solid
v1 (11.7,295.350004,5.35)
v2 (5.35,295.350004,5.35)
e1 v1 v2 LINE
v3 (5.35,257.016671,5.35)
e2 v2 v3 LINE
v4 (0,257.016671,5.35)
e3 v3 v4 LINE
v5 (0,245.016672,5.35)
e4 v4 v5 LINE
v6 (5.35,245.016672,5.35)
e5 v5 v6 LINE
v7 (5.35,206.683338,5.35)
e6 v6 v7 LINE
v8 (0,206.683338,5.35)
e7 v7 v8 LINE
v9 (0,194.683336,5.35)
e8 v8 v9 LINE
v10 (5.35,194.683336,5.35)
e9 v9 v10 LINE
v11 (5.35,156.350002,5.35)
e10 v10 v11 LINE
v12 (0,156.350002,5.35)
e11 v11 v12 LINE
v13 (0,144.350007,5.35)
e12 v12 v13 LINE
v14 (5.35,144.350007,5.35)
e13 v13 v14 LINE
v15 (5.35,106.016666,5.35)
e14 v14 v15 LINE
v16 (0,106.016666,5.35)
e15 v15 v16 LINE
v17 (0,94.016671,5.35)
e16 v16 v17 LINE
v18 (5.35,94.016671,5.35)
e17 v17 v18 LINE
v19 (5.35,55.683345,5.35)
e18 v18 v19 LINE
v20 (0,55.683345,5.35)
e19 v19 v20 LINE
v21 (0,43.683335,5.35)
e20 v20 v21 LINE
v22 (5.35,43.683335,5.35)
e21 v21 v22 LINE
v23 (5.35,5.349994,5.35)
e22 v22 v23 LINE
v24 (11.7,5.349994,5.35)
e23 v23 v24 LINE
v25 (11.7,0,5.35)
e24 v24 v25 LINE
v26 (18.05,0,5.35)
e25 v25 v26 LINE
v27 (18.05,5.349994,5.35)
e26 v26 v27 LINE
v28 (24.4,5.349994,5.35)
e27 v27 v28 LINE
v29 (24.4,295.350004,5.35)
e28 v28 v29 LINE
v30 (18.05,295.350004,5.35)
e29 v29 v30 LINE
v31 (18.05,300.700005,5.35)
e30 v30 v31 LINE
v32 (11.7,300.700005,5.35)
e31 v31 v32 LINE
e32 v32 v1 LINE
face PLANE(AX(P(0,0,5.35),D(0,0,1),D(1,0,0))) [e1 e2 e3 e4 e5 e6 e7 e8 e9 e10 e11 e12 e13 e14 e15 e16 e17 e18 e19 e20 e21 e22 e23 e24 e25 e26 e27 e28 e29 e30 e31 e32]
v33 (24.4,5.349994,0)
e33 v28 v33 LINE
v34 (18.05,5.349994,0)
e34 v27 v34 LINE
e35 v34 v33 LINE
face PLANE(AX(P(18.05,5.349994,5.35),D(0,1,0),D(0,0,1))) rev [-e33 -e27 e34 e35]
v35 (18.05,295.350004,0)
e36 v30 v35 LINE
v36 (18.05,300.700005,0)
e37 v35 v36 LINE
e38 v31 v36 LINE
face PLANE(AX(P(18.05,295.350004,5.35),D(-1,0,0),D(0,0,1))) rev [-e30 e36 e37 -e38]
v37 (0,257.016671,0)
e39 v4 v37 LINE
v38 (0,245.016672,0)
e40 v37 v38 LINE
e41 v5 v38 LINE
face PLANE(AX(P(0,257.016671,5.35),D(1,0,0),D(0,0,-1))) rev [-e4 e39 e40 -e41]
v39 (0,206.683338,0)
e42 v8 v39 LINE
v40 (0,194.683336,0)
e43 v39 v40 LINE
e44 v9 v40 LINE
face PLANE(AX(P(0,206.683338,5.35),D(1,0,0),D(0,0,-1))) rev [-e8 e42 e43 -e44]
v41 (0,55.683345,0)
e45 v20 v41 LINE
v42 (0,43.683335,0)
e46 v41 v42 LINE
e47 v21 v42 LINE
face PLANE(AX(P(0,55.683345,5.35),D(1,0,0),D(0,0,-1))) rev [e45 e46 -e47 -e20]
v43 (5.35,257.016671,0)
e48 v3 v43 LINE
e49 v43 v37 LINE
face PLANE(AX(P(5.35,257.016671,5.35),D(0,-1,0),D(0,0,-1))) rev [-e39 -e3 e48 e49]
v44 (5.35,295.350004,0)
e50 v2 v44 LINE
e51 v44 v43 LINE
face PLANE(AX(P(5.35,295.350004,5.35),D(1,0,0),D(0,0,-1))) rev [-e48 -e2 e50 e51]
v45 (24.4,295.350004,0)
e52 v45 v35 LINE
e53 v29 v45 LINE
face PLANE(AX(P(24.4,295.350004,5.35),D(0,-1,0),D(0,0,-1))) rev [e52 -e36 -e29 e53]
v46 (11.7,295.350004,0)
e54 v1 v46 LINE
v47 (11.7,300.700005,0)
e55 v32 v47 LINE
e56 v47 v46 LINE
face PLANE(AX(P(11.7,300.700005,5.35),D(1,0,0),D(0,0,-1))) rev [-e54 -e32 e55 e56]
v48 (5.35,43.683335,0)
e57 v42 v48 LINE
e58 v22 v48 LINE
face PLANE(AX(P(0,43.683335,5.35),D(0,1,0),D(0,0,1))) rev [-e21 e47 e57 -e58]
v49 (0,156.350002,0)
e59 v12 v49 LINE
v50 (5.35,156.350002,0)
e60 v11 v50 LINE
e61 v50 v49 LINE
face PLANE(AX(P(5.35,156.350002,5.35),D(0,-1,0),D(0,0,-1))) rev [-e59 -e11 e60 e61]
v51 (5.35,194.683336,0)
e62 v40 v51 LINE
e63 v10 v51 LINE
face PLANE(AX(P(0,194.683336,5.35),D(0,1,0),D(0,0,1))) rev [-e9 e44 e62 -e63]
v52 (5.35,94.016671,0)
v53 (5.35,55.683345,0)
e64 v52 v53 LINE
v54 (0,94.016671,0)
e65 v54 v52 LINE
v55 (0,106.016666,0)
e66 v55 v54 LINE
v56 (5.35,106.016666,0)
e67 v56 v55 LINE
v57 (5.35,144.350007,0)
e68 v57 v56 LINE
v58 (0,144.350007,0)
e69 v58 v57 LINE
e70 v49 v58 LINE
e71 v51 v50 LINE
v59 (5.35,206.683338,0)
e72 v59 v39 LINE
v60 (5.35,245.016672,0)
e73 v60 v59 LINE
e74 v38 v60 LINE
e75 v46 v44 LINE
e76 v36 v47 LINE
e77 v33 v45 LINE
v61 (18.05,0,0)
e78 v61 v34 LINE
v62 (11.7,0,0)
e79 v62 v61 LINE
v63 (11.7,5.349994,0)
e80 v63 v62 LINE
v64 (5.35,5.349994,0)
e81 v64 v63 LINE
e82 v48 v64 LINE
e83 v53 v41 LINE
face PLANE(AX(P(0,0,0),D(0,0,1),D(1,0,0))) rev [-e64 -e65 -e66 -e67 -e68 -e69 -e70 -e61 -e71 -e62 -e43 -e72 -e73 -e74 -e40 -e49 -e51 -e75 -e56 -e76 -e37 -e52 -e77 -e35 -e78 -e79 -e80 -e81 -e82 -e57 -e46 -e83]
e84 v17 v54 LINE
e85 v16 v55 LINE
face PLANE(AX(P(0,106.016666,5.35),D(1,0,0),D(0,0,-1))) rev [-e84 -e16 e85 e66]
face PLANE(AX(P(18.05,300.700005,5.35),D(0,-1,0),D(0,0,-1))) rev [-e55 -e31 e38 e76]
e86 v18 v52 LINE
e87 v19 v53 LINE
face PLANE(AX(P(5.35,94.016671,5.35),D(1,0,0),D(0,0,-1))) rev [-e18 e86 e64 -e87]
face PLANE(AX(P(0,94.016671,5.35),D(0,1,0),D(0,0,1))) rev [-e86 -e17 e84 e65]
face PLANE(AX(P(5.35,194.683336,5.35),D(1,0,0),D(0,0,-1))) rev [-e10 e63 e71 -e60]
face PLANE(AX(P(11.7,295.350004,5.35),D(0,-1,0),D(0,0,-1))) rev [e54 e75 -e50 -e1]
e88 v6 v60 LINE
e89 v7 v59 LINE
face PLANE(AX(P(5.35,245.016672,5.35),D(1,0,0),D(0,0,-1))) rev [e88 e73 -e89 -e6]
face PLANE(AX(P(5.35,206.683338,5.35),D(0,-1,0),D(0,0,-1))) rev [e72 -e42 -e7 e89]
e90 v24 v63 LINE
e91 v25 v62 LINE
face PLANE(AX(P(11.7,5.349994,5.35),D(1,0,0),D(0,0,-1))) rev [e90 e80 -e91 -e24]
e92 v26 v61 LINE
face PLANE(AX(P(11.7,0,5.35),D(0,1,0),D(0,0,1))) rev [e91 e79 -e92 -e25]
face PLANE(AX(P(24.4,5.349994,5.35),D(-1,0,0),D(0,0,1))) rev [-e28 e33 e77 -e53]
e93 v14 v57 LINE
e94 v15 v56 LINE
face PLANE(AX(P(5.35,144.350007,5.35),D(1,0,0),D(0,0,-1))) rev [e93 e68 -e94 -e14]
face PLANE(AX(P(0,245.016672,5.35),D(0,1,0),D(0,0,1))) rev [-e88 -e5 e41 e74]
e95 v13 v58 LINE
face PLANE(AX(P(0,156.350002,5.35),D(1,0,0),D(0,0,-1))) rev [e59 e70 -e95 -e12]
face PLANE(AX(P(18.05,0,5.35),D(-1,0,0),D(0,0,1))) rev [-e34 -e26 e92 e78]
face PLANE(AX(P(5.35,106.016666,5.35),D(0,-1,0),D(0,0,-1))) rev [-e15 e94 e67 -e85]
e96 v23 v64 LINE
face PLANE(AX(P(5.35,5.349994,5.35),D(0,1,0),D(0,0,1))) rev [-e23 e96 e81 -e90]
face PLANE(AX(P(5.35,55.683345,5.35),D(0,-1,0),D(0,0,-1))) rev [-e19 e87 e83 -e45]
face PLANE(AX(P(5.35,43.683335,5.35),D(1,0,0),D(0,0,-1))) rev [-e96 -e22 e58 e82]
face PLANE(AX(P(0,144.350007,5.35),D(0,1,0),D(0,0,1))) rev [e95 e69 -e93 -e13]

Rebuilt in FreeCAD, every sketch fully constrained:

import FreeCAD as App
import Part
import Sketcher
from FreeCAD import Vector


def add_polygon(sketch, points):
    """Adds a closed chain of lines whose ends are joined by coincident constraints."""
    first, n = sketch.GeometryCount, len(points)
    for a, b in zip(points, points[1:] + points[:1]):
        sketch.addGeometry(Part.LineSegment(App.Vector(*a, 0), App.Vector(*b, 0)), False)
    for i in range(n):
        sketch.addConstraint(Sketcher.Constraint("Coincident", first + i, 2, first + (i + 1) % n, 1))

doc = App.newDocument("Part")
body = doc.addObject("PartDesign::Body", "Body")

# Sketch on XY plane
sketch1 = body.newObject("Sketcher::SketchObject", "Sketch")
sketch1.AttachmentSupport = (doc.getObject("XY_Plane"), [""])
sketch1.MapMode = "FlatFace"
add_polygon(sketch1, [(24.4, 295.350004), (18.05, 295.350004), (18.05, 300.700005), (11.7, 300.700005), (11.7, 295.350004), (5.35, 295.350004), (5.35, 257.016671), (0, 257.016671), (0, 245.016672), (5.35, 245.016672), (5.35, 206.683338), (0, 206.683338), (0, 194.683336), (5.35, 194.683336), (5.35, 156.350002), (0, 156.350002), (0, 144.350007), (5.35, 144.350007), (5.35, 106.016666), (0, 106.016666), (0, 94.016671), (5.35, 94.016671), (5.35, 55.683345), (0, 55.683345), (0, 43.683335), (5.35, 43.683335), (5.35, 5.349994), (11.7, 5.349994), (11.7, 0), (18.05, 0), (18.05, 5.349994), (24.4, 5.349994)])  # lines 0-31
sketch1.addConstraint(Sketcher.Constraint("Horizontal", 0))
sketch1.addConstraint(Sketcher.Constraint("Vertical", 1))
sketch1.addConstraint(Sketcher.Constraint("Horizontal", 2))
sketch1.addConstraint(Sketcher.Constraint("Vertical", 3))
sketch1.addConstraint(Sketcher.Constraint("Horizontal", 4))
sketch1.addConstraint(Sketcher.Constraint("Vertical", 5))
sketch1.addConstraint(Sketcher.Constraint("Horizontal", 6))
sketch1.addConstraint(Sketcher.Constraint("Vertical", 7))
sketch1.addConstraint(Sketcher.Constraint("Horizontal", 8))
sketch1.addConstraint(Sketcher.Constraint("Vertical", 9))
sketch1.addConstraint(Sketcher.Constraint("Horizontal", 10))
sketch1.addConstraint(Sketcher.Constraint("Vertical", 11))
sketch1.addConstraint(Sketcher.Constraint("Horizontal", 12))
sketch1.addConstraint(Sketcher.Constraint("Vertical", 13))
sketch1.addConstraint(Sketcher.Constraint("Horizontal", 14))
sketch1.addConstraint(Sketcher.Constraint("Vertical", 15))
sketch1.addConstraint(Sketcher.Constraint("Horizontal", 16))
sketch1.addConstraint(Sketcher.Constraint("Vertical", 17))
sketch1.addConstraint(Sketcher.Constraint("Horizontal", 18))
sketch1.addConstraint(Sketcher.Constraint("Vertical", 19))
sketch1.addConstraint(Sketcher.Constraint("Horizontal", 20))
sketch1.addConstraint(Sketcher.Constraint("Vertical", 21))
sketch1.addConstraint(Sketcher.Constraint("Horizontal", 22))
sketch1.addConstraint(Sketcher.Constraint("Vertical", 23))
sketch1.addConstraint(Sketcher.Constraint("Horizontal", 24))
sketch1.addConstraint(Sketcher.Constraint("Vertical", 25))
sketch1.addConstraint(Sketcher.Constraint("Horizontal", 26))
sketch1.addConstraint(Sketcher.Constraint("Vertical", 27))
sketch1.addConstraint(Sketcher.Constraint("Horizontal", 28))
sketch1.addConstraint(Sketcher.Constraint("Vertical", 29))
sketch1.addConstraint(Sketcher.Constraint("Horizontal", 30))
sketch1.addConstraint(Sketcher.Constraint("Vertical", 31))
sketch1.addConstraint(Sketcher.Constraint("PointOnObject", 6, 2, -2))
sketch1.addConstraint(Sketcher.Constraint("PointOnObject", 10, 2, -2))
sketch1.addConstraint(Sketcher.Constraint("PointOnObject", 14, 2, -2))
sketch1.addConstraint(Sketcher.Constraint("PointOnObject", 18, 2, -2))
sketch1.addConstraint(Sketcher.Constraint("PointOnObject", 22, 2, -2))
sketch1.addConstraint(Sketcher.Constraint("PointOnObject", 27, 2, -1))
sketch1.addConstraint(Sketcher.Constraint("Horizontal", 0, 2, 3, 2))
sketch1.addConstraint(Sketcher.Constraint("Horizontal", 26, 2, 29, 2))
sketch1.addConstraint(Sketcher.Constraint("Vertical", 5, 2, 8, 2))
sketch1.addConstraint(Sketcher.Constraint("Vertical", 9, 2, 12, 2))
sketch1.addConstraint(Sketcher.Constraint("Vertical", 13, 2, 16, 2))
sketch1.addConstraint(Sketcher.Constraint("Vertical", 17, 2, 20, 2))
sketch1.addConstraint(Sketcher.Constraint("Vertical", 21, 2, 24, 2))
sketch1.addConstraint(Sketcher.Constraint("Vertical", 3, 2, 26, 2))
sketch1.addConstraint(Sketcher.Constraint("Vertical", 1, 2, 28, 2))
sketch1.addConstraint(Sketcher.Constraint("Equal", 0, 2))
sketch1.addConstraint(Sketcher.Constraint("Equal", 2, 4))
sketch1.addConstraint(Sketcher.Constraint("Equal", 24, 1))
sketch1.addConstraint(Sketcher.Constraint("Equal", 5, 9))
sketch1.addConstraint(Sketcher.Constraint("Equal", 9, 13))
sketch1.addConstraint(Sketcher.Constraint("Equal", 15, 19))
sketch1.addConstraint(Sketcher.Constraint("Equal", 17, 25))
sketch1.addConstraint(Sketcher.Constraint("DistanceY", 7, 2, 7, 1, 12.0))
sketch1.addConstraint(Sketcher.Constraint("DistanceY", 11, 2, 11, 1, 12.000002))
sketch1.addConstraint(Sketcher.Constraint("DistanceX", 0, 2, 0, 1, 6.35))
sketch1.addConstraint(Sketcher.Constraint("DistanceX", 6, 2, 6, 1, 5.35))
sketch1.addConstraint(Sketcher.Constraint("DistanceY", -1, 1, 13, 2, 156.350002))
sketch1.addConstraint(Sketcher.Constraint("DistanceY", 17, 2, 17, 1, 38.333341))
sketch1.addConstraint(Sketcher.Constraint("DistanceY", 23, 2, 23, 1, 12.000009))
sketch1.addConstraint(Sketcher.Constraint("DistanceY", 31, 1, 31, 2, 290.00001))
sketch1.addConstraint(Sketcher.Constraint("DistanceY", 5, 2, 5, 1, 38.333333))
sketch1.addConstraint(Sketcher.Constraint("DistanceY", 15, 2, 15, 1, 11.999995))
pad1 = body.newObject("PartDesign::Pad", "Pad")
pad1.Profile = sketch1
pad1.Length = 5.35

doc.recompute()
